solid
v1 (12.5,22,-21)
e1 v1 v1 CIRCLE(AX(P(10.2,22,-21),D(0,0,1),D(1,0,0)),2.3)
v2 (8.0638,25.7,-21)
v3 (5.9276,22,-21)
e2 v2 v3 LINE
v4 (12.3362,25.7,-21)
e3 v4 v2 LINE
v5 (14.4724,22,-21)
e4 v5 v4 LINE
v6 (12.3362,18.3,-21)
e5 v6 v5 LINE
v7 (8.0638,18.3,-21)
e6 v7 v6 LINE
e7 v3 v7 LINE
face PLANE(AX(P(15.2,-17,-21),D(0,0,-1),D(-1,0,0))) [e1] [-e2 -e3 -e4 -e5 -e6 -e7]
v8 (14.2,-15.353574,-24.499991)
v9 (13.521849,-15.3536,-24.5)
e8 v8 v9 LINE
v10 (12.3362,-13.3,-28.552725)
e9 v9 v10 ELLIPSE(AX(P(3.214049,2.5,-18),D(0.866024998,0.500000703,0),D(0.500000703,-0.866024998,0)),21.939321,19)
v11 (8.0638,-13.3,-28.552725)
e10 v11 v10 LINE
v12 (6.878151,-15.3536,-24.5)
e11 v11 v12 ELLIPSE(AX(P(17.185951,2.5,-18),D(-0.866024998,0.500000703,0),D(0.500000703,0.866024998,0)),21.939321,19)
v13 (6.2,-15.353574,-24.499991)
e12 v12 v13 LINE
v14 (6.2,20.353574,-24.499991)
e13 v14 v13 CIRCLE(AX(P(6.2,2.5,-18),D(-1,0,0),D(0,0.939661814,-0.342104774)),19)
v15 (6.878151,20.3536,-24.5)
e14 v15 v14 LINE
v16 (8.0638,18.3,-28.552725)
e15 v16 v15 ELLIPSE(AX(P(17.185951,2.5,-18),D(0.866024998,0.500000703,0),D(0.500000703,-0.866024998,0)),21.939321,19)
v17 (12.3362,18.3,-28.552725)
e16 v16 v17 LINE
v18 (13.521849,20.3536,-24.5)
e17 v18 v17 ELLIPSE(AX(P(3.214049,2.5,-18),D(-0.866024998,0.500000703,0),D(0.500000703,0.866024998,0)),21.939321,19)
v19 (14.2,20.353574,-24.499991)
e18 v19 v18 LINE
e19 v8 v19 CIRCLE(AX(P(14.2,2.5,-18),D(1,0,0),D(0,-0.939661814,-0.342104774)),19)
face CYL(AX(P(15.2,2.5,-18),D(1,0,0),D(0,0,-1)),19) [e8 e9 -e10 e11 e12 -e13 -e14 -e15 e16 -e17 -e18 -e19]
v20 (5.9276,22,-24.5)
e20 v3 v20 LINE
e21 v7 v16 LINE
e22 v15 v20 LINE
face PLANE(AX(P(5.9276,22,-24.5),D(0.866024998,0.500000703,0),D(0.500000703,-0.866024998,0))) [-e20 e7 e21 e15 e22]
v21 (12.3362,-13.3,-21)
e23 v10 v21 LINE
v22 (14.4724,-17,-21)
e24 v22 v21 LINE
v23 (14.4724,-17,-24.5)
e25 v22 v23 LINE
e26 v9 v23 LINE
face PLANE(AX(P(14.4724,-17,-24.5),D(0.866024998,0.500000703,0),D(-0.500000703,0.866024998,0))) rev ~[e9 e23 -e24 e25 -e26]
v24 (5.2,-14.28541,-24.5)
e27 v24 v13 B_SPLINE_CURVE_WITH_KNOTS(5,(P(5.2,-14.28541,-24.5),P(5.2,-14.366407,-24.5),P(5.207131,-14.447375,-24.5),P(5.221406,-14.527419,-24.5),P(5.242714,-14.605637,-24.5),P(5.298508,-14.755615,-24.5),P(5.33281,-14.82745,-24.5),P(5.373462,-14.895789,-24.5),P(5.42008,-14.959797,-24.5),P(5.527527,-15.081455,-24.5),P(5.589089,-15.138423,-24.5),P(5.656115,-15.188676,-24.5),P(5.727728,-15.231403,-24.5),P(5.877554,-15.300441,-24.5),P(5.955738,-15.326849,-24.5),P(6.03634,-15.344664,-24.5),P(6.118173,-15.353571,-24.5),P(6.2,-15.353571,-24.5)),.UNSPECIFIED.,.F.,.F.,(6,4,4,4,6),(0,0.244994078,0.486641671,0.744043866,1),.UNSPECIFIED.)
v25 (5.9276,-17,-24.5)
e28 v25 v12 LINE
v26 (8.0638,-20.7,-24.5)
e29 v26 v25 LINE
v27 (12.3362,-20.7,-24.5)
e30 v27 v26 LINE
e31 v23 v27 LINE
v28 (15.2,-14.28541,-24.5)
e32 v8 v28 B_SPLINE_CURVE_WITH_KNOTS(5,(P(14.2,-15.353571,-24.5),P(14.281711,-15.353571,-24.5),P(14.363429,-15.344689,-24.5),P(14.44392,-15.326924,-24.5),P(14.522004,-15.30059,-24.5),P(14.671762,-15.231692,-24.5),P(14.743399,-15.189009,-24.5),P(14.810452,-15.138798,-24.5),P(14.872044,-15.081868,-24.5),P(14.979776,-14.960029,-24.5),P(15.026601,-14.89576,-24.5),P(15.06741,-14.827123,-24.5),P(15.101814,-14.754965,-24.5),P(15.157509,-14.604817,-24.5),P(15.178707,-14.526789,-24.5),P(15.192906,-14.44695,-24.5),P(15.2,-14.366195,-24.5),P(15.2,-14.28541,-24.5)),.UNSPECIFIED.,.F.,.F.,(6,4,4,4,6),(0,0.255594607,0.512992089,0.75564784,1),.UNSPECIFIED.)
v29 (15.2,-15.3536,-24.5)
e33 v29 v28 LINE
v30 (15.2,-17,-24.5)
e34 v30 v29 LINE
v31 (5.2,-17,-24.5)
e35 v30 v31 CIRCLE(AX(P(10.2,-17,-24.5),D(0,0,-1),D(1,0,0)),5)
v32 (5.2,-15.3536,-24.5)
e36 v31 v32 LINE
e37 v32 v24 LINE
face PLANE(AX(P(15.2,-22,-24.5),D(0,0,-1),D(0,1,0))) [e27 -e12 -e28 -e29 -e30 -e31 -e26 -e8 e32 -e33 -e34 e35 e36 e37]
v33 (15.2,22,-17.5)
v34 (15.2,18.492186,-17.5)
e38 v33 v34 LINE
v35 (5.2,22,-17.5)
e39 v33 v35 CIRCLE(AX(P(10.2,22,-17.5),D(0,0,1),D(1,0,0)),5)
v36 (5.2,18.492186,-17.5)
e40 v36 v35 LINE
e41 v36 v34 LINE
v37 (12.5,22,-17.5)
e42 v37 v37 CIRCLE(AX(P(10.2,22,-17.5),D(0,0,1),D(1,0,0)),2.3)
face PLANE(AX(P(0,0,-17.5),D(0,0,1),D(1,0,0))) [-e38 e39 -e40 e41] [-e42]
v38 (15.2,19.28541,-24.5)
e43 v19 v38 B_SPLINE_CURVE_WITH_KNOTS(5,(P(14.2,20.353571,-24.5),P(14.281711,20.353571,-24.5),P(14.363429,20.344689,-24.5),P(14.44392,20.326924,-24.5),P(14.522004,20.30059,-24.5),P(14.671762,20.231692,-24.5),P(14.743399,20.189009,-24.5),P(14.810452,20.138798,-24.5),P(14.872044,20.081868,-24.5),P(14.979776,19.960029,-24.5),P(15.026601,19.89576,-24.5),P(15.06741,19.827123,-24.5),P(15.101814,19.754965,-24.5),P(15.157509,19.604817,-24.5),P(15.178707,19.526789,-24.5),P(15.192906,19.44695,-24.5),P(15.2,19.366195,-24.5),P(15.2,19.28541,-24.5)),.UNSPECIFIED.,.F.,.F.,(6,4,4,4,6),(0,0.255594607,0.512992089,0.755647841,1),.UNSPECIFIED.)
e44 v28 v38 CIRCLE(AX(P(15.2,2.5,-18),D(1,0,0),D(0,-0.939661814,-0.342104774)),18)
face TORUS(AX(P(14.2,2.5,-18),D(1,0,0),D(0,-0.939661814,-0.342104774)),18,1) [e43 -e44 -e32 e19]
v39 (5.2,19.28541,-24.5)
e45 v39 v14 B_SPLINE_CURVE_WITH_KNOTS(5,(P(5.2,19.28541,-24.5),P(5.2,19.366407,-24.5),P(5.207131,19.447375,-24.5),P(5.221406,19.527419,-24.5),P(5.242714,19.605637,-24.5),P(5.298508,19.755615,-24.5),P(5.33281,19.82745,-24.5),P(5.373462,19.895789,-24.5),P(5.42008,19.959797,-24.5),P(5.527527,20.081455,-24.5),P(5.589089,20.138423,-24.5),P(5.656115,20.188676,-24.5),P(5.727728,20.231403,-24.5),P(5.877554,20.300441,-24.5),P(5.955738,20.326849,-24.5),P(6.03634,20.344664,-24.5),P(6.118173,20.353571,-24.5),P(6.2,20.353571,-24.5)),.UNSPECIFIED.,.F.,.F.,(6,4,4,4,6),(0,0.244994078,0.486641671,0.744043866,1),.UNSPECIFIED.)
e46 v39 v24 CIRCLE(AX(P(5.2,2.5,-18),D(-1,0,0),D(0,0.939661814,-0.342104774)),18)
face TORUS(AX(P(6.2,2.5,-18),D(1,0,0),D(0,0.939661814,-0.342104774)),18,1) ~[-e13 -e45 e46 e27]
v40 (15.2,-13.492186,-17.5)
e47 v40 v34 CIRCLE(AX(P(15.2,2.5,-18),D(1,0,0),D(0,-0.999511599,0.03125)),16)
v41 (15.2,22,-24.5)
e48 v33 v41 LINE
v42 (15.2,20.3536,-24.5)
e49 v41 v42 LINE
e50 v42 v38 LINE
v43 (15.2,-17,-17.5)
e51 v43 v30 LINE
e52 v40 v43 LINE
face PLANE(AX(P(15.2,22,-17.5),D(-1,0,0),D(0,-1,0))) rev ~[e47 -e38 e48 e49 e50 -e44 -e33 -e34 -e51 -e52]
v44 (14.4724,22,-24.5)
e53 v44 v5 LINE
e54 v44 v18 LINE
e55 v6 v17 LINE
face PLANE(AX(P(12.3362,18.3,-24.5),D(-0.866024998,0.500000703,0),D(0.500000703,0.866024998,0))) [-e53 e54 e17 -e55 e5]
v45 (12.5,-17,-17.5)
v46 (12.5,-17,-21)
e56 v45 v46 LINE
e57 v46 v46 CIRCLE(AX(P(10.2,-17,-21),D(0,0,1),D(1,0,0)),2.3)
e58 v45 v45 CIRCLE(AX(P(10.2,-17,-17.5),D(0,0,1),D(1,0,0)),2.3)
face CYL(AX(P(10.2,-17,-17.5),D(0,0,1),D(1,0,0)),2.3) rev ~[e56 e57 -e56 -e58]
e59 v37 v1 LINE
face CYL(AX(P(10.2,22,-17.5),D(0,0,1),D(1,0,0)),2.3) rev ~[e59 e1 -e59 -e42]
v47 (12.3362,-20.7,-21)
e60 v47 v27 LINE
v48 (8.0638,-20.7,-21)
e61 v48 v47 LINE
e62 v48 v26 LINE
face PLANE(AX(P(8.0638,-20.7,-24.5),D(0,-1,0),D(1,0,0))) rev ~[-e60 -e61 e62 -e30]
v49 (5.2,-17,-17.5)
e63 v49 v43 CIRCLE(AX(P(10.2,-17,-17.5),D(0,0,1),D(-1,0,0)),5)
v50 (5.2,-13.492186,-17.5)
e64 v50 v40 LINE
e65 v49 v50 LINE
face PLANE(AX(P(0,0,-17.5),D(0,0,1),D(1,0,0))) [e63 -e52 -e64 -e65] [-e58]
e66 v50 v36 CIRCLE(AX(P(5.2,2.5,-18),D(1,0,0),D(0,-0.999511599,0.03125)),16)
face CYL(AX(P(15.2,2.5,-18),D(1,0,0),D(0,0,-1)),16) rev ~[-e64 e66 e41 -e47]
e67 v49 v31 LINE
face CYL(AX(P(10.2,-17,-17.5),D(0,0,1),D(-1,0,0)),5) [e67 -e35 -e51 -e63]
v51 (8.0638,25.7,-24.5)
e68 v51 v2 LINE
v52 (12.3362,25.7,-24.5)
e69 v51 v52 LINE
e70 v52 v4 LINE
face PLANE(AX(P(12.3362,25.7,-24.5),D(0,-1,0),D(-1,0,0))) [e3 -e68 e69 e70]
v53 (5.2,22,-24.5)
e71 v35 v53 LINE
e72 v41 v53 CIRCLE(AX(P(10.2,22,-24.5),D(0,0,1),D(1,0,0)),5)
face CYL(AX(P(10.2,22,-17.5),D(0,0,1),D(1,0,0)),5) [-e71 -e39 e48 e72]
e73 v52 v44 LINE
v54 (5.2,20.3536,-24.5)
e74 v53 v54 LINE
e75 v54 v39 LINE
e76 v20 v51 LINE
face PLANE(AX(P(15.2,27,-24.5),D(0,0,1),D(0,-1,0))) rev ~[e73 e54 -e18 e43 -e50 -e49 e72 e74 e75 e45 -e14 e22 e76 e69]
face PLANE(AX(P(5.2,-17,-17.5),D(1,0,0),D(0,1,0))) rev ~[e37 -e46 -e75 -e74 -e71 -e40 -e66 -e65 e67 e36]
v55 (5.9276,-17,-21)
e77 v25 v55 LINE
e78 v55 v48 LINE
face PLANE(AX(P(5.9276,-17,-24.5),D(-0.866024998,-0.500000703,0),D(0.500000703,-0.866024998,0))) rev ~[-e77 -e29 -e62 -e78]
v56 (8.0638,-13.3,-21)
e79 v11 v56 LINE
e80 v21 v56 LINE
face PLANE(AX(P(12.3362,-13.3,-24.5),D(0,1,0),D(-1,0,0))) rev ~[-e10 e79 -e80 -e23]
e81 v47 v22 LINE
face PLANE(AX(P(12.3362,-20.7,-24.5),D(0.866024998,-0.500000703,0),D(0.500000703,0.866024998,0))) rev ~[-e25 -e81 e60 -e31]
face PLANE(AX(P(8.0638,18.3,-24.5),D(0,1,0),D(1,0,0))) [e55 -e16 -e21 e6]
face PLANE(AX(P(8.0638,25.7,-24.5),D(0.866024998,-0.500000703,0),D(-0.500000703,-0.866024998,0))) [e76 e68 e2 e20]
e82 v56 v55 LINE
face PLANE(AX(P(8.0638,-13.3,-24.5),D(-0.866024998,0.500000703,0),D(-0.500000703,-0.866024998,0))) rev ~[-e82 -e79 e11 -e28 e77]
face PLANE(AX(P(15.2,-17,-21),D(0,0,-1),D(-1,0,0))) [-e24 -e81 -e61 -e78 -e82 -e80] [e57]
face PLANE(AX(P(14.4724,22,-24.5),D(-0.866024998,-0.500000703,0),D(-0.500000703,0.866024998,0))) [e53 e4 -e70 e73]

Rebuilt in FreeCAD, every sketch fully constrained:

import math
import FreeCAD as App
import Part
import Sketcher

V = App.Vector
Q = App.Units.Quantity


def edges_at(feature, points):
    """Names of the edges that pass closest to the given points."""
    edges = feature.Shape.Edges
    near = lambda p: min(range(len(edges)), key=lambda i: edges[i].distToShape(Part.Vertex(*p))[0])
    return sorted({f"Edge{near(p) + 1}" for p in points})

doc = App.newDocument("Part")
body = doc.addObject("PartDesign::Body", "Body")

sketch1 = doc.addObject("Sketcher::SketchObject", "Sketch")
body.addObject(sketch1)
sketch1.AttachmentSupport = (doc.XY_Plane, [""])
sketch1.MapMode = "FlatFace"
sketch1.AttachmentOffset = App.Placement(V(0, 0, -17.5), App.Rotation())
sketch1.addGeometry(Part.LineSegment(V(5.2, 22, 0), V(5.2, -17, 0)), False)
sketch1.addGeometry(Part.ArcOfCircle(Part.Circle(V(10.2, -17, 0), V(0, 0, 1), 5), math.radians(180), math.radians(360)), False)
sketch1.addGeometry(Part.LineSegment(V(15.2, -17, 0), V(15.2, 22, 0)), False)
sketch1.addGeometry(Part.ArcOfCircle(Part.Circle(V(10.2, 22, 0), V(0, 0, 1), 5), math.radians(0), math.radians(180)), False)
sketch1.addGeometry(Part.Circle(V(10.2, -17, 0), V(0, 0, 1), 2.3), False)
sketch1.addGeometry(Part.Circle(V(10.2, 22, 0), V(0, 0, 1), 2.3), False)
sketch1.addConstraint(Sketcher.Constraint("Tangent", 0, 2, 1, 1))
sketch1.addConstraint(Sketcher.Constraint("Tangent", 1, 2, 2, 1))
sketch1.addConstraint(Sketcher.Constraint("Tangent", 2, 2, 3, 1))
sketch1.addConstraint(Sketcher.Constraint("Tangent", 3, 2, 0, 1))
sketch1.addConstraint(Sketcher.Constraint("Vertical", 0))
sketch1.addConstraint(Sketcher.Constraint("Vertical", 2))
sketch1.addConstraint(Sketcher.Constraint("Coincident", 4, 3, 1, 3))
sketch1.addConstraint(Sketcher.Constraint("Coincident", 5, 3, 3, 3))
sketch1.addConstraint(Sketcher.Constraint("Equal", 4, 5))
sketch1.addConstraint(Sketcher.Constraint("Radius", 1, 5.0))
sketch1.addConstraint(Sketcher.Constraint("Diameter", 4, 4.6))
sketch1.addConstraint(Sketcher.Constraint("DistanceY", 0, 2, 0, 1, 39.0))
sketch1.addConstraint(Sketcher.Constraint("DistanceY", 1, 3, -1, 1, 17.0))
sketch1.addConstraint(Sketcher.Constraint("DistanceX", -1, 1, 0, 2, 5.2))
pad1 = doc.addObject("PartDesign::Pad", "Pad")
body.addObject(pad1)
pad1.Profile = sketch1
pad1.Length = 20
pad1.Reversed = True

sketch2 = doc.addObject("Sketcher::SketchObject", "Sketch001")
body.addObject(sketch2)
sketch2.AttachmentSupport = (doc.YZ_Plane, [""])
sketch2.MapMode = "FlatFace"
sketch2.AttachmentOffset = App.Placement(V(0, 0, 15.2), App.Rotation())
sketch2.addGeometry(Part.Circle(V(2.5, -18, 0), V(0, 0, 1), 16), False)
sketch2.addGeometry(Part.LineSegment(V(-45.4, -53.5, 0), V(53.9, -53.5, 0)), False)
sketch2.addGeometry(Part.LineSegment(V(53.9, -53.5, 0), V(53.9, 4.9, 0)), False)
sketch2.addGeometry(Part.LineSegment(V(53.9, 4.9, 0), V(-45.4, 4.9, 0)), False)
sketch2.addGeometry(Part.LineSegment(V(-45.4, 4.9, 0), V(-45.4, -53.5, 0)), False)
sketch2.addGeometry(Part.ArcOfCircle(Part.Circle(V(2.5, -18, 0), V(0, 0, 1), 19), math.radians(10), math.radians(166)), False)
sketch2.addGeometry(Part.LineSegment(V(21.2, -14.6, 0), V(27.8, -15, 0)), False)
sketch2.addGeometry(Part.LineSegment(V(27.8, -15, 0), V(29.4, -22, 0)), False)
sketch2.addGeometry(Part.LineSegment(V(29.4, -22, 0), V(27, -24.5, 0)), False)
sketch2.addGeometry(Part.LineSegment(V(27, -24.5, 0), V(20.4, -24.5, 0)), False)
sketch2.addGeometry(Part.ArcOfCircle(Part.Circle(V(2.5, -18, 0), V(0, 0, 1), 19), math.radians(-160), math.radians(-20)), False)
sketch2.addGeometry(Part.LineSegment(V(-15.4, -24.5, 0), V(-22, -24.5, 0)), False)
sketch2.addGeometry(Part.LineSegment(V(-22, -24.5, 0), V(-41.4, -27, 0)), False)
sketch2.addGeometry(Part.LineSegment(V(-41.4, -27, 0), V(-35.9, -7.2, 0)), False)
sketch2.addGeometry(Part.LineSegment(V(-35.9, -7.2, 0), V(-16, -13.5, 0)), False)
sketch2.addConstraint(Sketcher.Constraint("Coincident", 1, 2, 2, 1))
sketch2.addConstraint(Sketcher.Constraint("Coincident", 2, 2, 3, 1))
sketch2.addConstraint(Sketcher.Constraint("Coincident", 3, 2, 4, 1))
sketch2.addConstraint(Sketcher.Constraint("Coincident", 4, 2, 1, 1))
sketch2.addConstraint(Sketcher.Constraint("Coincident", 5, 1, 6, 1))
sketch2.addConstraint(Sketcher.Constraint("Coincident", 6, 2, 7, 1))
sketch2.addConstraint(Sketcher.Constraint("Coincident", 7, 2, 8, 1))
sketch2.addConstraint(Sketcher.Constraint("Coincident", 8, 2, 9, 1))
sketch2.addConstraint(Sketcher.Constraint("Coincident", 9, 2, 10, 2))
sketch2.addConstraint(Sketcher.Constraint("Coincident", 10, 1, 11, 1))
sketch2.addConstraint(Sketcher.Constraint("Coincident", 11, 2, 12, 1))
sketch2.addConstraint(Sketcher.Constraint("Coincident", 12, 2, 13, 1))
sketch2.addConstraint(Sketcher.Constraint("Coincident", 13, 2, 14, 1))
sketch2.addConstraint(Sketcher.Constraint("Coincident", 14, 2, 5, 2))
sketch2.addConstraint(Sketcher.Constraint("Horizontal", 1))
sketch2.addConstraint(Sketcher.Constraint("Vertical", 2))
sketch2.addConstraint(Sketcher.Constraint("Horizontal", 3))
sketch2.addConstraint(Sketcher.Constraint("Vertical", 4))
sketch2.addConstraint(Sketcher.Constraint("Horizontal", 9))
sketch2.addConstraint(Sketcher.Constraint("Horizontal", 11))
sketch2.addConstraint(Sketcher.Constraint("Coincident", 5, 3, 0, 3))
sketch2.addConstraint(Sketcher.Constraint("Coincident", 10, 3, 0, 3))
sketch2.addConstraint(Sketcher.Constraint("Equal", 5, 10))
sketch2.addConstraint(Sketcher.Constraint("Horizontal", 9, 2, 10, 1))
sketch2.addConstraint(Sketcher.Constraint("Equal", 9, 11))
sketch2.addConstraint(Sketcher.Constraint("Diameter", 0, 32.0))
sketch2.addConstraint(Sketcher.Constraint("DistanceY", 0, 3, -1, 1, 18.0))
sketch2.addConstraint(Sketcher.Constraint("Radius", 5, 19.0))
sketch2.addConstraint(Sketcher.Constraint("DistanceY", 8, 2, -1, 1, 24.5))
sketch2.addConstraint(Sketcher.Constraint("DistanceX", 0, 3, 8, 2, 24.5))
sketch2.addConstraint(Sketcher.Constraint("DistanceX", -1, 1, 8, 2, 27.0))
sketch2.addConstraint(Sketcher.Constraint("Angle", 6, Q("-2.7704 deg")))
sketch2.addConstraint(Sketcher.Constraint("Angle", 8, Q("-133.9411 deg")))
sketch2.addConstraint(Sketcher.Constraint("DistanceY", 4, 2, 12, 2, 26.5))
sketch2.addConstraint(Sketcher.Constraint("Distance", 14, 20.88))
sketch2.addConstraint(Sketcher.Constraint("DistanceY", 2, 1, 2, 2, 58.415))
sketch2.addConstraint(Sketcher.Constraint("DistanceY", 7, 2, -1, 1, 21.99))
sketch2.addConstraint(Sketcher.Constraint("DistanceY", 6, 2, 2, 2, 19.85))
sketch2.addConstraint(Sketcher.Constraint("Distance", 6, 6.597))
sketch2.addConstraint(Sketcher.Constraint("DistanceX", 1, 1, 1, 2, 99.2187))
sketch2.addConstraint(Sketcher.Constraint("DistanceY", -1, 1, 2, 2, 4.892))
sketch2.addConstraint(Sketcher.Constraint("DistanceX", 13, 2, -1, 1, 35.857))
sketch2.addConstraint(Sketcher.Constraint("DistanceX", 14, 2, -1, 1, 15.959))
sketch2.addConstraint(Sketcher.Constraint("DistanceX", 4, 2, 12, 2, 3.946))
sketch2.addConstraint(Sketcher.Constraint("Distance", 12, 19.5805))
pocket1 = doc.addObject("PartDesign::Pocket", "Pocket")
body.addObject(pocket1)
pocket1.Profile = sketch2
pocket1.Length = 10

sketch3 = doc.addObject("Sketcher::SketchObject", "Sketch002")
body.addObject(sketch3)
sketch3.AttachmentSupport = (doc.XY_Plane, [""])
sketch3.MapMode = "FlatFace"
sketch3.AttachmentOffset = App.Placement(V(0, 0, -24.5), App.Rotation())
sketch3.addGeometry(Part.LineSegment(V(14.5, 22, 0), V(12.3, 18.3, 0)), False)
sketch3.addGeometry(Part.LineSegment(V(12.3, 18.3, 0), V(8.1, 18.3, 0)), False)
sketch3.addGeometry(Part.LineSegment(V(8.1, 18.3, 0), V(5.9, 22, 0)), False)
sketch3.addGeometry(Part.LineSegment(V(5.9, 22, 0), V(8.1, 25.7, 0)), False)
sketch3.addGeometry(Part.LineSegment(V(8.1, 25.7, 0), V(12.3, 25.7, 0)), False)
sketch3.addGeometry(Part.LineSegment(V(12.3, 25.7, 0), V(14.5, 22, 0)), False)
sketch3.addGeometry(Part.LineSegment(V(12.3, -13.3, 0), V(14.5, -17, 0)), False)
sketch3.addGeometry(Part.LineSegment(V(14.5, -17, 0), V(12.3, -20.7, 0)), False)
sketch3.addGeometry(Part.LineSegment(V(12.3, -20.7, 0), V(8.1, -20.7, 0)), False)
sketch3.addGeometry(Part.LineSegment(V(8.1, -20.7, 0), V(5.9, -17, 0)), False)
sketch3.addGeometry(Part.LineSegment(V(5.9, -17, 0), V(8.1, -13.3, 0)), False)
sketch3.addGeometry(Part.LineSegment(V(8.1, -13.3, 0), V(12.3, -13.3, 0)), False)
sketch3.addConstraint(Sketcher.Constraint("Coincident", 0, 2, 1, 1))
sketch3.addConstraint(Sketcher.Constraint("Coincident", 1, 2, 2, 1))
sketch3.addConstraint(Sketcher.Constraint("Coincident", 2, 2, 3, 1))
sketch3.addConstraint(Sketcher.Constraint("Coincident", 3, 2, 4, 1))
sketch3.addConstraint(Sketcher.Constraint("Coincident", 4, 2, 5, 1))
sketch3.addConstraint(Sketcher.Constraint("Coincident", 5, 2, 0, 1))
sketch3.addConstraint(Sketcher.Constraint("Coincident", 6, 2, 7, 1))
sketch3.addConstraint(Sketcher.Constraint("Coincident", 7, 2, 8, 1))
sketch3.addConstraint(Sketcher.Constraint("Coincident", 8, 2, 9, 1))
sketch3.addConstraint(Sketcher.Constraint("Coincident", 9, 2, 10, 1))
sketch3.addConstraint(Sketcher.Constraint("Coincident", 10, 2, 11, 1))
sketch3.addConstraint(Sketcher.Constraint("Coincident", 11, 2, 6, 1))
sketch3.addConstraint(Sketcher.Constraint("Horizontal", 1))
sketch3.addConstraint(Sketcher.Constraint("Horizontal", 4))
sketch3.addConstraint(Sketcher.Constraint("Horizontal", 8))
sketch3.addConstraint(Sketcher.Constraint("Horizontal", 11))
sketch3.addConstraint(Sketcher.Constraint("Parallel", 0, 3))
sketch3.addConstraint(Sketcher.Constraint("Parallel", 2, 5))
sketch3.addConstraint(Sketcher.Constraint("Parallel", 5, 6))
sketch3.addConstraint(Sketcher.Constraint("Parallel", 3, 7))
sketch3.addConstraint(Sketcher.Constraint("Parallel", 6, 9))
sketch3.addConstraint(Sketcher.Constraint("Parallel", 7, 10))
sketch3.addConstraint(Sketcher.Constraint("Horizontal", 2, 2, 5, 2))
sketch3.addConstraint(Sketcher.Constraint("Horizontal", 6, 2, 9, 2))
sketch3.addConstraint(Sketcher.Constraint("Vertical", 1, 2, 3, 2))
sketch3.addConstraint(Sketcher.Constraint("Vertical", 0, 2, 4, 2))
sketch3.addConstraint(Sketcher.Constraint("Vertical", 5, 2, 6, 2))
sketch3.addConstraint(Sketcher.Constraint("Vertical", 4, 2, 7, 2))
sketch3.addConstraint(Sketcher.Constraint("Vertical", 3, 2, 8, 2))
sketch3.addConstraint(Sketcher.Constraint("Vertical", 8, 2, 10, 2))
sketch3.addConstraint(Sketcher.Constraint("DistanceY", 1, 2, 3, 2, 7.4))
sketch3.addConstraint(Sketcher.Constraint("Angle", 0, Q("-120 deg")))
sketch3.addConstraint(Sketcher.Constraint("DistanceY", -1, 1, 2, 2, 22.0))
sketch3.addConstraint(Sketcher.Constraint("DistanceY", 6, 2, -1, 1, 17.0))
sketch3.addConstraint(Sketcher.Constraint("DistanceX", 1, 2, 1, 1, 4.2724))
sketch3.addConstraint(Sketcher.Constraint("DistanceX", -1, 1, 0, 2, 12.3362))
pocket2 = doc.addObject("PartDesign::Pocket", "Pocket001")
body.addObject(pocket2)
pocket2.Profile = sketch3
pocket2.Type = "TwoLengths"
pocket2.Length = 10
pocket2.Length2 = 3.5
doc.recompute()

fillet = doc.addObject("PartDesign::Fillet", "Fillet")
body.addObject(fillet)
fillet.Base = (pocket2, edges_at(pocket2, [(15.2, 2.5, -37), (5.2, 2.5, -37)]))
fillet.Radius = 1

doc.recompute()
